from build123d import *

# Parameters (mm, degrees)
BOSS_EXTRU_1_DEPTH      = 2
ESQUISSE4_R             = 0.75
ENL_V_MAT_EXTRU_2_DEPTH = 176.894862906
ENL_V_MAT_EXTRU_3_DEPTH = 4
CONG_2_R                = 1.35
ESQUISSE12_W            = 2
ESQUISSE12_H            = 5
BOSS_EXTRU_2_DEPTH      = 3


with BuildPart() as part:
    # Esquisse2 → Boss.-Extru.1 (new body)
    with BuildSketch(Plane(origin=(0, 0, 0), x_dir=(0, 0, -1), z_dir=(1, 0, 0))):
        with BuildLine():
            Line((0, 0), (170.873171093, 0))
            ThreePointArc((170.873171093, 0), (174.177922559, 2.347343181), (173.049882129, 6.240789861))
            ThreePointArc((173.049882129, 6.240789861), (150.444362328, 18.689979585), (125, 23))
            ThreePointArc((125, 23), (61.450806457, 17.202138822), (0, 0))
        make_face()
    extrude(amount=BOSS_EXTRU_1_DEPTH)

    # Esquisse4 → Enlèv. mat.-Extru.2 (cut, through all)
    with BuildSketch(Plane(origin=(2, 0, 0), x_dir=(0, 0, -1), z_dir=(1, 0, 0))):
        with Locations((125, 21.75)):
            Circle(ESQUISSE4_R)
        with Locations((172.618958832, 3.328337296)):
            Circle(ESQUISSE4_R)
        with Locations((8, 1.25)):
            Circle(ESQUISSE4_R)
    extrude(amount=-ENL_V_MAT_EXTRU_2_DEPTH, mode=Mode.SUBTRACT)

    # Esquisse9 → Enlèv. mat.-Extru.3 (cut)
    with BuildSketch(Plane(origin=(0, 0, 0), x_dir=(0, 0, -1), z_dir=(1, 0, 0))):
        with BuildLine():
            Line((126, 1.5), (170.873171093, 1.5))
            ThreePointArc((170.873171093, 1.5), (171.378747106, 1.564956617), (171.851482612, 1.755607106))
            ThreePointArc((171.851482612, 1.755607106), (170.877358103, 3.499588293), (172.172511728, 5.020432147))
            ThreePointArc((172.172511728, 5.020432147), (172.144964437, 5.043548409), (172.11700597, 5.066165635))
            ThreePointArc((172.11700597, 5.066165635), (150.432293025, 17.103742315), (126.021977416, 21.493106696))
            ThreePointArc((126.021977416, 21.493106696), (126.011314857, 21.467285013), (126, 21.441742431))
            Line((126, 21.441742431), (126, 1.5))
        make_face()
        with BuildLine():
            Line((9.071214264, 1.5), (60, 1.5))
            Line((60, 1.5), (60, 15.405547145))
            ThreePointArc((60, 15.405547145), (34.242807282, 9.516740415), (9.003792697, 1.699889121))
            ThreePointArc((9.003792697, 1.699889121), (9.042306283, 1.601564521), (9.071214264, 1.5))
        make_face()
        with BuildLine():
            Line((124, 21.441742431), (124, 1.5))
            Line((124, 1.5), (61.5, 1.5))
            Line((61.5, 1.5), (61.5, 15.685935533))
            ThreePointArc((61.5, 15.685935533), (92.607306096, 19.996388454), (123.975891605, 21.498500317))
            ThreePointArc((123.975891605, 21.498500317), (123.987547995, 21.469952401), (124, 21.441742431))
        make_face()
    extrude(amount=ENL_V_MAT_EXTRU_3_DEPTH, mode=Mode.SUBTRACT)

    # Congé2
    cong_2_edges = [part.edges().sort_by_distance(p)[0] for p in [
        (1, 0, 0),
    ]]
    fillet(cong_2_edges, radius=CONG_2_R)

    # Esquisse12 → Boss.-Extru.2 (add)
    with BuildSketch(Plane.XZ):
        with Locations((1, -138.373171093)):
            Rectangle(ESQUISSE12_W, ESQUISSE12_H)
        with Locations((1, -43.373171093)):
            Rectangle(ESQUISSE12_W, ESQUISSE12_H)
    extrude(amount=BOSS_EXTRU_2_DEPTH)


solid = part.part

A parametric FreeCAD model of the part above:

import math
import FreeCAD as App
import Part
import Sketcher
from FreeCAD import Vector
Q = App.Units.Quantity


def edges_at(feature, points):
    """Names of the edges that pass closest to the given points."""
    edges = feature.Shape.Edges
    near = lambda p: min(range(len(edges)), key=lambda i: edges[i].distToShape(Part.Vertex(*p))[0])
    return sorted({f"Edge{near(p) + 1}" for p in points})

doc = App.newDocument("Part")
body = doc.addObject("PartDesign::Body", "Body")

# Sketch on YZ plane
sketch1 = body.newObject("Sketcher::SketchObject", "Sketch")
sketch1.AttachmentSupport = (doc.getObject("YZ_Plane"), [""])
sketch1.MapMode = "FlatFace"
sketch1.addGeometry([
    Part.LineSegment(Vector(0, 0, 0), Vector(0, -170.9, 0)),
    Part.ArcOfCircle(Part.Circle(Vector(3.5, -170.9, 0), Vector(0, 0, 1), 3.5), math.radians(-180), math.radians(-38)),
    Part.ArcOfCircle(Part.Circle(Vector(-54.3, -125, 0), Vector(0, 0, 1), 77.3), math.radians(-38), math.radians(0)),
    Part.ArcOfCircle(Part.Circle(Vector(-328.2, -125, 0), Vector(0, 0, 1), 351.2), math.radians(0), math.radians(21)),
], False)
sketch1.addConstraint([
    Sketcher.Constraint("Tangent", 0, 2, 1, 1),
    Sketcher.Constraint("Tangent", 1, 2, 2, 1),
    Sketcher.Constraint("Tangent", 2, 2, 3, 1),
    Sketcher.Constraint("Coincident", 3, 2, 0, 1),
    Sketcher.Constraint("Vertical", 0),
    Sketcher.Constraint("Coincident", 3, 2, -1, 1),
    Sketcher.Constraint("Horizontal", 2, 3, 3, 3),
    Sketcher.Constraint("Radius", 1, Q("3.5 mm")),
    Sketcher.Constraint("DistanceY", 2, 3, -1, 1, Q("125 mm")),
    Sketcher.Constraint("DistanceX", -1, 1, 2, 2, Q("23 mm")),
    Sketcher.Constraint("Radius", 2, Q("77.26087 mm")),
])
pad1 = body.newObject("PartDesign::Pad", "Pad")
pad1.Profile = sketch1
pad1.Length = 2

# Sketch on YZ plane
sketch2 = body.newObject("Sketcher::SketchObject", "Sketch001")
sketch2.AttachmentSupport = (doc.getObject("YZ_Plane"), [""])
sketch2.MapMode = "FlatFace"
sketch2.AttachmentOffset = App.Placement(Vector(0, 0, 2), App.Rotation())
sketch2.addGeometry([
    Part.Circle(Vector(21.8, -125, 0), Vector(0, 0, 1), 0.8),
    Part.Circle(Vector(3.3, -172.6, 0), Vector(0, 0, 1), 0.8),
    Part.Circle(Vector(1.2, -8, 0), Vector(0, 0, 1), 0.8),
], False)
sketch2.addConstraint([
    Sketcher.Constraint("Equal", 0, 1),
    Sketcher.Constraint("Equal", 1, 2),
    Sketcher.Constraint("Diameter", 0, Q("1.5 mm")),
    Sketcher.Constraint("DistanceY", 0, 3, -1, 1, Q("125 mm")),
    Sketcher.Constraint("DistanceY", 2, 3, -1, 1, Q("8 mm")),
    Sketcher.Constraint("DistanceX", 2, 3, 0, 3, Q("20.5 mm")),
    Sketcher.Constraint("DistanceX", -1, 1, 0, 3, Q("21.75 mm")),
    Sketcher.Constraint("DistanceY", 1, 3, -1, 1, Q("172.618959 mm")),
    Sketcher.Constraint("DistanceX", -1, 1, 1, 3, Q("3.328337 mm")),
])
pocket1 = body.newObject("PartDesign::Pocket", "Pocket")
pocket1.Profile = sketch2
pocket1.Type = "ThroughAll"

# Sketch on YZ plane
sketch3 = body.newObject("Sketcher::SketchObject", "Sketch002")
sketch3.AttachmentSupport = (doc.getObject("YZ_Plane"), [""])
sketch3.MapMode = "FlatFace"
sketch3.addGeometry([
    Part.LineSegment(Vector(1.5, -126, 0), Vector(1.5, -170.87, 0)),  # 0
    Part.ArcOfCircle(Part.Circle(Vector(3.5, -170.87, 0), Vector(0, 0, 1), 2), math.radians(180), math.radians(209)),  # 1
    Part.ArcOfCircle(Part.Circle(Vector(3.33, -172.62, 0), Vector(0, 0, 1), 1.75), math.radians(15), math.radians(154)),  # 2
    Part.ArcOfCircle(Part.Circle(Vector(3.5, -170.87, 0), Vector(0, 0, 1), 2), math.radians(-40.52), math.radians(-38.46)),  # 3
    Part.ArcOfCircle(Part.Circle(Vector(-54.26, -125, 0), Vector(0, 0, 1), 75.76), math.radians(-38), math.radians(-1)),  # 4
    Part.ArcOfCircle(Part.Circle(Vector(21.9, -125, 0), Vector(0, 0, 1), 1.1), math.radians(-114.62), math.radians(-111.71)),  # 5
    Part.LineSegment(Vector(21.44, -126, 0), Vector(1.5, -126, 0)),  # 6
    Part.LineSegment(Vector(1.5, -9.07, 0), Vector(1.5, -60, 0)),  # 7
    Part.LineSegment(Vector(1.5, -60, 0), Vector(15.41, -60, 0)),  # 8
    Part.ArcOfCircle(Part.Circle(Vector(-328.17, -125, 0), Vector(0, 0, 1), 349.67), math.radians(10.71), math.radians(19.37)),  # 9
    Part.ArcOfCircle(Part.Circle(Vector(1.25, -8, 0), Vector(0, 0, 1), 1.1), math.radians(-76.86), math.radians(-65.86)),  # 10
    Part.LineSegment(Vector(1.5, -124, 0), Vector(21.44, -124, 0)),  # 11
    Part.ArcOfCircle(Part.Circle(Vector(21.9, -125, 0), Vector(0, 0, 1), 1.1), math.radians(111.41), math.radians(114.62)),  # 12
    Part.ArcOfCircle(Part.Circle(Vector(-328.17, -125, 0), Vector(0, 0, 1), 349.67), math.radians(0.17), math.radians(10.46)),  # 13
    Part.LineSegment(Vector(15.69, -61.5, 0), Vector(1.5, -61.5, 0)),  # 14
    Part.LineSegment(Vector(1.5, -61.5, 0), Vector(1.5, -124, 0)),  # 15
], False)
sketch3.addConstraint([
    Sketcher.Constraint("Tangent", 0, 2, 1, 1),
    Sketcher.Constraint("Coincident", 1, 2, 2, 2),
    Sketcher.Constraint("Coincident", 2, 1, 3, 1),
    Sketcher.Constraint("Tangent", 3, 2, 4, 1),
    Sketcher.Constraint("Coincident", 4, 2, 5, 2),
    Sketcher.Constraint("Coincident", 5, 1, 6, 1),
    Sketcher.Constraint("Coincident", 6, 2, 0, 1),
    Sketcher.Constraint("Coincident", 7, 2, 8, 1),
    Sketcher.Constraint("Coincident", 8, 2, 9, 1),
    Sketcher.Constraint("Coincident", 9, 2, 10, 2),
    Sketcher.Constraint("Coincident", 10, 1, 7, 1),
    Sketcher.Constraint("Coincident", 11, 2, 12, 2),
    Sketcher.Constraint("Coincident", 12, 1, 13, 1),
    Sketcher.Constraint("Coincident", 13, 2, 14, 1),
    Sketcher.Constraint("Coincident", 14, 2, 15, 1),
    Sketcher.Constraint("Coincident", 15, 2, 11, 1),
    Sketcher.Constraint("Vertical", 0),
    Sketcher.Constraint("Horizontal", 6),
    Sketcher.Constraint("Vertical", 7),
    Sketcher.Constraint("Horizontal", 8),
    Sketcher.Constraint("Horizontal", 11),
    Sketcher.Constraint("Horizontal", 14),
    Sketcher.Constraint("Vertical", 15),
    Sketcher.Constraint("Coincident", 3, 3, 1, 3),
    Sketcher.Constraint("Coincident", 12, 3, 5, 3),
    Sketcher.Constraint("Coincident", 13, 3, 9, 3),
    Sketcher.Constraint("Equal", 5, 10),
    Sketcher.Constraint("Equal", 10, 12),
    Sketcher.Constraint("Equal", 9, 13),
    Sketcher.Constraint("Horizontal", 4, 3, 5, 3),
    Sketcher.Constraint("Horizontal", 5, 3, 9, 3),
    Sketcher.Constraint("Vertical", 6, 2, 7, 2),
    Sketcher.Constraint("Vertical", 5, 1, 11, 2),
    Sketcher.Constraint("Vertical", 10, 1, 14, 2),
    Sketcher.Constraint("Radius", 1, Q("2 mm")),
    Sketcher.Constraint("Radius", 5, Q("1.099999 mm")),
    Sketcher.Constraint("Radius", 2, Q("1.75 mm")),
    Sketcher.Constraint("DistanceY", 15, 2, 15, 1, Q("62.5 mm")),
    Sketcher.Constraint("DistanceY", 4, 3, -1, 1, Q("125 mm")),
    Sketcher.Constraint("DistanceY", 10, 3, -1, 1, Q("8 mm")),
    Sketcher.Constraint("DistanceY", 5, 1, -1, 1, Q("126 mm")),
    Sketcher.Constraint("DistanceY", 7, 2, -1, 1, Q("60 mm")),
    Sketcher.Constraint("DistanceX", -1, 1, 1, 3, Q("3.5 mm")),
    Sketcher.Constraint("DistanceX", -1, 1, 5, 3, Q("21.9 mm")),
    Sketcher.Constraint("DistanceX", -1, 1, 10, 3, Q("1.25 mm")),
    Sketcher.Constraint("Radius", 4, Q("75.76087 mm")),
    Sketcher.Constraint("Radius", 3, Q("1.999996 mm")),
    Sketcher.Constraint("Radius", 9, Q("349.673913 mm")),
    Sketcher.Constraint("DistanceY", 0, 2, 0, 1, Q("44.873171 mm")),
    Sketcher.Constraint("DistanceX", -1, 1, 12, 1, Q("21.4985 mm")),
    Sketcher.Constraint("DistanceY", 2, 3, -1, 1, Q("172.618959 mm")),
    Sketcher.Constraint("DistanceY", 2, 1, -1, 1, Q("172.172512 mm")),
])
pocket2 = body.newObject("PartDesign::Pocket", "Pocket001")
pocket2.Profile = sketch3
pocket2.Length = 4
pocket2.Reversed = True
doc.recompute()

fillet = body.newObject("PartDesign::Fillet", "Fillet")
fillet.Base = (pocket2, edges_at(pocket2, [(1, 0, 0)]))
fillet.Radius = 1.35

# Sketch on XZ plane
sketch4 = body.newObject("Sketcher::SketchObject", "Sketch003")
sketch4.AttachmentSupport = (doc.getObject("XZ_Plane"), [""])
sketch4.MapMode = "FlatFace"
sketch4.addGeometry([
    Part.LineSegment(Vector(0, -135.9, 0), Vector(0, -140.9, 0)),  # 0
    Part.LineSegment(Vector(0, -140.9, 0), Vector(2, -140.9, 0)),  # 1
    Part.LineSegment(Vector(2, -140.9, 0), Vector(2, -135.9, 0)),  # 2
    Part.LineSegment(Vector(2, -135.9, 0), Vector(0, -135.9, 0)),  # 3
    Part.LineSegment(Vector(0, -40.9, 0), Vector(0, -45.9, 0)),  # 4
    Part.LineSegment(Vector(0, -45.9, 0), Vector(2, -45.9, 0)),  # 5
    Part.LineSegment(Vector(2, -45.9, 0), Vector(2, -40.9, 0)),  # 6
    Part.LineSegment(Vector(2, -40.9, 0), Vector(0, -40.9, 0)),  # 7
], False)
sketch4.addConstraint([
    Sketcher.Constraint("Coincident", 0, 2, 1, 1),
    Sketcher.Constraint("Coincident", 1, 2, 2, 1),
    Sketcher.Constraint("Coincident", 2, 2, 3, 1),
    Sketcher.Constraint("Coincident", 3, 2, 0, 1),
    Sketcher.Constraint("Coincident", 4, 2, 5, 1),
    Sketcher.Constraint("Coincident", 5, 2, 6, 1),
    Sketcher.Constraint("Coincident", 6, 2, 7, 1),
    Sketcher.Constraint("Coincident", 7, 2, 4, 1),
    Sketcher.Constraint("Vertical", 0),
    Sketcher.Constraint("Horizontal", 1),
    Sketcher.Constraint("Vertical", 2),
    Sketcher.Constraint("Horizontal", 3),
    Sketcher.Constraint("Vertical", 4),
    Sketcher.Constraint("Horizontal", 5),
    Sketcher.Constraint("Vertical", 6),
    Sketcher.Constraint("Horizontal", 7),
    Sketcher.Constraint("PointOnObject", 0, 2, -2),
    Sketcher.Constraint("PointOnObject", 4, 2, -2),
    Sketcher.Constraint("Vertical", 2, 2, 5, 2),
    Sketcher.Constraint("Equal", 2, 4),
    Sketcher.Constraint("DistanceX", 1, 1, 1, 2, Q("2 mm")),
    Sketcher.Constraint("DistanceY", 0, 2, 0, 1, Q("5 mm")),
    Sketcher.Constraint("DistanceY", 3, 2, 4, 2, Q("90 mm")),
    Sketcher.Constraint("DistanceY", 0, 2, -1, 1, Q("140.873171 mm")),
])
pad2 = body.newObject("PartDesign::Pad", "Pad001")
pad2.Profile = sketch4
pad2.Length = 3

doc.recompute()
